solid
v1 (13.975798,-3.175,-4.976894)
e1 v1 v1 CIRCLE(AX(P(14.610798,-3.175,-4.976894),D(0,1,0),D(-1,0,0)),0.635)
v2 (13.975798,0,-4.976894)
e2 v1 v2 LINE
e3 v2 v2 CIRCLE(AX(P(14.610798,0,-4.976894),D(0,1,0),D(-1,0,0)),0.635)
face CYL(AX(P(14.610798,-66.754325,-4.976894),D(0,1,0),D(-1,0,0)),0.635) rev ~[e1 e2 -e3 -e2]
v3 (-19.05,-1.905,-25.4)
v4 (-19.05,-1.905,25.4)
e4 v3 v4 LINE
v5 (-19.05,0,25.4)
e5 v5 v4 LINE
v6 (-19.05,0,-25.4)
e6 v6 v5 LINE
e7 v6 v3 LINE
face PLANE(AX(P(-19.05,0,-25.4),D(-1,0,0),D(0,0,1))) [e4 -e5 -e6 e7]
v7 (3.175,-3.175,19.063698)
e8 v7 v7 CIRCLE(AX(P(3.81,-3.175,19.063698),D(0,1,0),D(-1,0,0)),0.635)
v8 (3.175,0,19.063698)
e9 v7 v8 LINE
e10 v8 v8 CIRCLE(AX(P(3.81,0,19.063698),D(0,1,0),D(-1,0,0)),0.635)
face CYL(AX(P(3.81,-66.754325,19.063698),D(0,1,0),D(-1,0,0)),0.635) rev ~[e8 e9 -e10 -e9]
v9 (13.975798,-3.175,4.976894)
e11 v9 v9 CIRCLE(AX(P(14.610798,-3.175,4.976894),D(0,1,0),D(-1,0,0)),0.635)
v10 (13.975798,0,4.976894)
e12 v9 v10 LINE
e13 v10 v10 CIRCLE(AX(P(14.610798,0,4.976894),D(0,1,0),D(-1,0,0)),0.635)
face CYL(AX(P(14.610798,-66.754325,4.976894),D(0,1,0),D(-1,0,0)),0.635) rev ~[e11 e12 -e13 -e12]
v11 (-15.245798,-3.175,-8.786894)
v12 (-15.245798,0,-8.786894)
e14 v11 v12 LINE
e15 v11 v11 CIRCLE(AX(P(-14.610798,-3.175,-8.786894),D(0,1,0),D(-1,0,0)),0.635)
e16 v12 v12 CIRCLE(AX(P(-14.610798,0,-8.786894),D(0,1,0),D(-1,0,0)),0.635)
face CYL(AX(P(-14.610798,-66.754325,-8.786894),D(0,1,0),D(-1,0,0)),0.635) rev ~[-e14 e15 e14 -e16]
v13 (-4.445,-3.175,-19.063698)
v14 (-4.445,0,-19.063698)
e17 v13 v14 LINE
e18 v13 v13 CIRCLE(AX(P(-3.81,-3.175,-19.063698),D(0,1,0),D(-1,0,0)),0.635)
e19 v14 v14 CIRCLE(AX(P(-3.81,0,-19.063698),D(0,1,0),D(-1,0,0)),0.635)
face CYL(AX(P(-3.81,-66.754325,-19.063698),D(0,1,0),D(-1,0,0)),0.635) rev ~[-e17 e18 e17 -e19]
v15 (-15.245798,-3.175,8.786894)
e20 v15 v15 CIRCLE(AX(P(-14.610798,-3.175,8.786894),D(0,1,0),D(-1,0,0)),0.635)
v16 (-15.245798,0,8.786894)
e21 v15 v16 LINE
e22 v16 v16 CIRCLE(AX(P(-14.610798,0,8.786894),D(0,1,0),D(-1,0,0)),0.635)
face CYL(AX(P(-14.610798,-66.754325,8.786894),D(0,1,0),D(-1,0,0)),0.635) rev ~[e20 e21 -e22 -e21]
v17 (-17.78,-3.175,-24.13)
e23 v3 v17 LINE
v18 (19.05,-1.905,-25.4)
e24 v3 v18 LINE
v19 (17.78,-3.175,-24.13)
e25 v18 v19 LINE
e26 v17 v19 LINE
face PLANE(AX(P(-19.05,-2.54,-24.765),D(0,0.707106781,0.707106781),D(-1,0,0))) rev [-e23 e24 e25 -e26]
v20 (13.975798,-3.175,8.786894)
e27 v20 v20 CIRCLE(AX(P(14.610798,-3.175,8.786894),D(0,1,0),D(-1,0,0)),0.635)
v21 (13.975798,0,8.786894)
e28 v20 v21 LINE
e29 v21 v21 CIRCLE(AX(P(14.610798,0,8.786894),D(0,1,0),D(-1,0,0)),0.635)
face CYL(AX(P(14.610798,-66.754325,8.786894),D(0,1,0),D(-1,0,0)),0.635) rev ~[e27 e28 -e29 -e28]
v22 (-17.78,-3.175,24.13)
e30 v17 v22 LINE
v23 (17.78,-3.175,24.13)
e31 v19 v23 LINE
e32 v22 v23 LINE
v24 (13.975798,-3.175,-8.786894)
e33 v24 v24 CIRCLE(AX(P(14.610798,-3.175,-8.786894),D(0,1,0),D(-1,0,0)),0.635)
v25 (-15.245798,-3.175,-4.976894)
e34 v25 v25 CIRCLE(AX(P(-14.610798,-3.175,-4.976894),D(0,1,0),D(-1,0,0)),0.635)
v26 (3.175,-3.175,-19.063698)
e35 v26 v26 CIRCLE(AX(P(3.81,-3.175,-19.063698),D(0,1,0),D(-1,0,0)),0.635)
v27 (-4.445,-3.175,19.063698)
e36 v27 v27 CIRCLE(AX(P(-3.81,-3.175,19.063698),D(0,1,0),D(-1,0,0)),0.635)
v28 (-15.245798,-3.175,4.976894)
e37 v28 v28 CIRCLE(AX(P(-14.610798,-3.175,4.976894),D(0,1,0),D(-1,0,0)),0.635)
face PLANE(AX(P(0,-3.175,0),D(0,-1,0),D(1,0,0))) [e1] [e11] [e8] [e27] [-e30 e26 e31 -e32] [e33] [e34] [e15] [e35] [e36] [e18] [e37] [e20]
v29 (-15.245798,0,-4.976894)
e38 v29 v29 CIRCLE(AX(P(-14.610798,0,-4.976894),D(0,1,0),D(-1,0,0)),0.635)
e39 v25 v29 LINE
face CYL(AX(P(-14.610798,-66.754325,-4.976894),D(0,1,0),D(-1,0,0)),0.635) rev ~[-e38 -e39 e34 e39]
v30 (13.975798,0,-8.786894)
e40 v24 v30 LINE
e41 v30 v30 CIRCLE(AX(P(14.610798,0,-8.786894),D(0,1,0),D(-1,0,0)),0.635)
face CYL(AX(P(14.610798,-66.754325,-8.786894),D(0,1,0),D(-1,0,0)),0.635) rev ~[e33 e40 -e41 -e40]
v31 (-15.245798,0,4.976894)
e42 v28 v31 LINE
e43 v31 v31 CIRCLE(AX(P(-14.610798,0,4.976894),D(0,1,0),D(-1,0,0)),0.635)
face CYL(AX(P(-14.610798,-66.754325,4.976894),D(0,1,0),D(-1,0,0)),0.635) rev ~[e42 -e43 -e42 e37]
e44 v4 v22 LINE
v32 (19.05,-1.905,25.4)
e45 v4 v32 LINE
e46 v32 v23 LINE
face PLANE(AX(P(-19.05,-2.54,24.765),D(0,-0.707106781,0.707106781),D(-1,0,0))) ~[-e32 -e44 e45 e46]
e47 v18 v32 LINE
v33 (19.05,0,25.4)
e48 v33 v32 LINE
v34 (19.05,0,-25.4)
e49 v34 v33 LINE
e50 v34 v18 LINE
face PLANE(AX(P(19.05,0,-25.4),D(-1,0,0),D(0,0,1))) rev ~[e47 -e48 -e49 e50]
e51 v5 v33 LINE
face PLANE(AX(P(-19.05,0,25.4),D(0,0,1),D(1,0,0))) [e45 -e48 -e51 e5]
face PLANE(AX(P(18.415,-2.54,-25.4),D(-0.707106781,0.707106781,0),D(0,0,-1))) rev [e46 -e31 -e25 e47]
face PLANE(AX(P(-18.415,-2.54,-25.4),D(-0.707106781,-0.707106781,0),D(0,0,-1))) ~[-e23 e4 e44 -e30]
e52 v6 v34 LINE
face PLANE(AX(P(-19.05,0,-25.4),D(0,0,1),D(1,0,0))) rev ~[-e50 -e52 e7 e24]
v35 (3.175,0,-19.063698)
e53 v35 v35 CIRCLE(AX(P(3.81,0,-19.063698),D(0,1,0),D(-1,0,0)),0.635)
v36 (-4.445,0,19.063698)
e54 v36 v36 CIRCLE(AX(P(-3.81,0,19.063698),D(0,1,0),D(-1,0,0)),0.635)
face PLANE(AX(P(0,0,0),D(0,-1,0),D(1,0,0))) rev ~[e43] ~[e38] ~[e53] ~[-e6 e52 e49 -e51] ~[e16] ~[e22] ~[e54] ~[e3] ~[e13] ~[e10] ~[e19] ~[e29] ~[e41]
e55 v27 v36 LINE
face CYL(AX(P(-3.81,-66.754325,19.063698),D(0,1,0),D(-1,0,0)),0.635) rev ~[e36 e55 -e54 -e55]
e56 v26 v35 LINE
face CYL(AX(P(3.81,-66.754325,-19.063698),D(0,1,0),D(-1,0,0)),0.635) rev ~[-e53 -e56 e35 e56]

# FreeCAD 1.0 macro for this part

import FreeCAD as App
import Part
import Sketcher
from FreeCAD import Vector
Q = App.Units.Quantity


def edges_at(feature, points):
    """Names of the edges that pass closest to the given points."""
    edges = feature.Shape.Edges
    near = lambda p: min(range(len(edges)), key=lambda i: edges[i].distToShape(Part.Vertex(*p))[0])
    return sorted({f"Edge{near(p) + 1}" for p in points})


def add_polygon(sketch, points):
    """Adds a closed chain of lines whose ends are joined by coincident constraints."""
    first, n = sketch.GeometryCount, len(points)
    for a, b in zip(points, points[1:] + points[:1]):
        sketch.addGeometry(Part.LineSegment(App.Vector(*a, 0), App.Vector(*b, 0)), False)
    for i in range(n):
        sketch.addConstraint(Sketcher.Constraint("Coincident", first + i, 2, first + (i + 1) % n, 1))

doc = App.newDocument("Part")
body = doc.addObject("PartDesign::Body", "Body")

# Sketch on XZ plane
sketch1 = body.newObject("Sketcher::SketchObject", "Sketch")
sketch1.AttachmentSupport = (doc.getObject("XZ_Plane"), [""])
sketch1.MapMode = "FlatFace"
add_polygon(sketch1, [(-19.05, 25.4), (-19.05, -25.4), (19.05, -25.4), (19.05, 25.4)])  # lines 0-3
sketch1.addConstraint([
    Sketcher.Constraint("Vertical", 0),
    Sketcher.Constraint("Horizontal", 1),
    Sketcher.Constraint("Vertical", 2),
    Sketcher.Constraint("Horizontal", 3),
    Sketcher.Constraint("Symmetric", 0, 2, 2, 2, -1, 1),
    Sketcher.Constraint("DistanceY", 0, 2, 0, 1, Q("2 in")),
    Sketcher.Constraint("DistanceX", 1, 1, 1, 2, Q("1.5 in")),
])
pad1 = body.newObject("PartDesign::Pad", "Pad")
pad1.Profile = sketch1
pad1.Length = Q("0.125 in")
doc.recompute()

chamfer = body.newObject("PartDesign::Chamfer", "Chamfer")
chamfer.Base = (pad1, edges_at(pad1, [
    (19.05, -3.175, 0),
    (0, -3.175, 25.4),
    (-19.05, -3.175, 0),
    (0, -3.175, -25.4),
]))
chamfer.Size = Q("0.05 in")

# Sketch on XZ plane
sketch2 = body.newObject("Sketcher::SketchObject", "Sketch001")
sketch2.AttachmentSupport = (doc.getObject("XZ_Plane"), [""])
sketch2.MapMode = "FlatFace"
sketch2.AttachmentOffset = App.Placement(Vector(0, 0, 0.125 * 25.4), App.Rotation())
sketch2.addGeometry([
    Part.Circle(Vector(-14.610798, 8.786894, 0), Vector(0, 0, 1), 0.635),  # 0
    Part.Circle(Vector(3.81, -19.063698, 0), Vector(0, 0, 1), 0.635),  # 1
    Part.Circle(Vector(14.610798, -4.976894, 0), Vector(0, 0, 1), 0.635),  # 2
    Part.Circle(Vector(-14.610798, 4.976894, 0), Vector(0, 0, 1), 0.635),  # 3
    Part.Circle(Vector(3.81, 19.063698, 0), Vector(0, 0, 1), 0.635),  # 4
    Part.Circle(Vector(14.610798, -8.786894, 0), Vector(0, 0, 1), 0.635),  # 5
    Part.Circle(Vector(-3.81, 19.063698, 0), Vector(0, 0, 1), 0.635),  # 6
    Part.Circle(Vector(-14.610798, -8.786894, 0), Vector(0, 0, 1), 0.635),  # 7
    Part.Circle(Vector(14.610798, 4.976894, 0), Vector(0, 0, 1), 0.635),  # 8
    Part.Circle(Vector(14.610798, 8.786894, 0), Vector(0, 0, 1), 0.635),  # 9
    Part.Circle(Vector(-14.610798, -4.976894, 0), Vector(0, 0, 1), 0.635),  # 10
    Part.Circle(Vector(-3.81, -19.063698, 0), Vector(0, 0, 1), 0.635),  # 11
], False)
sketch2.addConstraint([
    Sketcher.Constraint("Equal", 0, 1),
    Sketcher.Constraint("Equal", 1, 2),
    Sketcher.Constraint("Equal", 2, 3),
    Sketcher.Constraint("Equal", 3, 4),
    Sketcher.Constraint("Equal", 4, 5),
    Sketcher.Constraint("Equal", 5, 6),
    Sketcher.Constraint("Equal", 6, 7),
    Sketcher.Constraint("Equal", 7, 8),
    Sketcher.Constraint("Equal", 8, 9),
    Sketcher.Constraint("Equal", 9, 10),
    Sketcher.Constraint("Equal", 10, 11),
    Sketcher.Constraint("Symmetric", 2, 3, 3, 3, -1, 1),
    Sketcher.Constraint("Symmetric", 0, 3, 5, 3, -1, 1),
    Sketcher.Constraint("Symmetric", 1, 3, 6, 3, -1, 1),
    Sketcher.Constraint("Symmetric", 7, 3, 9, 3, -1, 1),
    Sketcher.Constraint("Symmetric", 8, 3, 10, 3, -1, 1),
    Sketcher.Constraint("Symmetric", 4, 3, 11, 3, -1, 1),
    Sketcher.Constraint("Symmetric", 4, 3, 6, 3, -2),
    Sketcher.Constraint("Symmetric", 5, 3, 7, 3, -2),
    Sketcher.Constraint("Symmetric", 3, 3, 8, 3, -2),
    Sketcher.Constraint("Vertical", 0, 3, 3, 3),
    Sketcher.Constraint("Diameter", 0, Q("0.05 in")),
    Sketcher.Constraint("DistanceX", 6, 3, 4, 3, Q("0.3 in")),
    Sketcher.Constraint("DistanceY", 3, 3, 0, 3, Q("0.15 in")),
    Sketcher.Constraint("DistanceX", 0, 3, -1, 1, Q("14.610798 mm")),
    Sketcher.Constraint("DistanceY", 1, 3, 0, 3, Q("27.850592 mm")),
    Sketcher.Constraint("DistanceY", 5, 3, 0, 3, Q("17.573788 mm")),
])
doc.recompute()
hole = body.newObject("PartDesign::Hole", "Hole")
hole.Profile = sketch2
hole.ThreadType = "None"
hole.Diameter = Q("0.05 in")
hole.DepthType = "ThroughAll"

doc.recompute()
